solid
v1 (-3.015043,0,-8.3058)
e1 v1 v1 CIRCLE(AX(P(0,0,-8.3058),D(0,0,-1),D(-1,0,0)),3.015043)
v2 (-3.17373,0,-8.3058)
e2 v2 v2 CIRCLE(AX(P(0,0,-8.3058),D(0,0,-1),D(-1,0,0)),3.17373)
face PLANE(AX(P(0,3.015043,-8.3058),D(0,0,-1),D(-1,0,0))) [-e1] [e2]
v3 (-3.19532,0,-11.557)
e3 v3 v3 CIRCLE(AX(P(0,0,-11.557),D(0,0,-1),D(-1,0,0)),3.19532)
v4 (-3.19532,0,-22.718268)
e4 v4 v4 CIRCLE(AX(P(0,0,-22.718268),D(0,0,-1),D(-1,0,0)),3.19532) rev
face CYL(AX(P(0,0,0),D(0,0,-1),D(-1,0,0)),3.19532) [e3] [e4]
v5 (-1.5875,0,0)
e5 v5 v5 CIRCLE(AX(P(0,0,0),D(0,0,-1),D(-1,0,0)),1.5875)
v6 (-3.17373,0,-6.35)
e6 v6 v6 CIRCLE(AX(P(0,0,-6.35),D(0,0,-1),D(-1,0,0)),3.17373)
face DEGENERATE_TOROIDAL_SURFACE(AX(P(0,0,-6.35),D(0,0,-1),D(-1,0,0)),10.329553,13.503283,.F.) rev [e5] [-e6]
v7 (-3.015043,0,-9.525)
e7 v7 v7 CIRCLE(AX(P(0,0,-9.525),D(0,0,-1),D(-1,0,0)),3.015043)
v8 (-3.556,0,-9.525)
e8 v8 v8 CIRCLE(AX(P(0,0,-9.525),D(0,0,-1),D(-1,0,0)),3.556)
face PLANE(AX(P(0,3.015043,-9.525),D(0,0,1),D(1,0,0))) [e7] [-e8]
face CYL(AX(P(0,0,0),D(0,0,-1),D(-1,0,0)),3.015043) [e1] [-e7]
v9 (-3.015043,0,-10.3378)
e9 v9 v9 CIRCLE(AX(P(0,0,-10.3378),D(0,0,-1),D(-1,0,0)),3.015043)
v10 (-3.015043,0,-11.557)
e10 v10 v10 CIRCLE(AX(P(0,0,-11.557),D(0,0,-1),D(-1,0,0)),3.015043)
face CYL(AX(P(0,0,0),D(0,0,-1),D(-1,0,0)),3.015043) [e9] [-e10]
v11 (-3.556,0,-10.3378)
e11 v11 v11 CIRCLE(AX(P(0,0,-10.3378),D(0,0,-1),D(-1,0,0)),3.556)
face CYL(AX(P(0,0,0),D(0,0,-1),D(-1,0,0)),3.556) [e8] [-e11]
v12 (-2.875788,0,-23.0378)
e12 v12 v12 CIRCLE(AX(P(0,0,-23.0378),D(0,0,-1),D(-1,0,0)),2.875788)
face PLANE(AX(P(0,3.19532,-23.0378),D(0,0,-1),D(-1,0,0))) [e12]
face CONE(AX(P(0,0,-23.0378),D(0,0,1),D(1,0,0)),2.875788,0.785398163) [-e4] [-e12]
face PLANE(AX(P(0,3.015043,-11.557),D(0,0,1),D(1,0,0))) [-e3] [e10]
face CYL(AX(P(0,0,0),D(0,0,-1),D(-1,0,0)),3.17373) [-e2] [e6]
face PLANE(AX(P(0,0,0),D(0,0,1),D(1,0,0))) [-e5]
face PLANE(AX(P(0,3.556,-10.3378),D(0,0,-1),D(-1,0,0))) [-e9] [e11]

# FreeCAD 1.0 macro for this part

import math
import FreeCAD as App
import Part
import Sketcher

V = App.Vector
Q = App.Units.Quantity


def edges_at(feature, points):
    """Names of the edges that pass closest to the given points."""
    edges = feature.Shape.Edges
    near = lambda p: min(range(len(edges)), key=lambda i: edges[i].distToShape(Part.Vertex(*p))[0])
    return sorted({f"Edge{near(p) + 1}" for p in points})

doc = App.newDocument("Part")
body = doc.addObject("PartDesign::Body", "Body")

sketch1 = body.newObject("Sketcher::SketchObject", "Sketch")
sketch1.AttachmentSupport = (doc.getObject("YZ_Plane"), [""])
sketch1.MapMode = "FlatFace"
sketch1.addGeometry([
    Part.LineSegment(V(1.5875, 0, 0), V(0, 0, 0)),
    Part.LineSegment(V(0, 0, 0), V(0, -23.0378, 0)),
    Part.LineSegment(V(0, -23.0378, 0), V(3.19532, -23.0378, 0)),
    Part.LineSegment(V(3.19532, -23.0378, 0), V(3.19532, -11.557, 0)),
    Part.LineSegment(V(3.19532, -11.557, 0), V(3.015043, -11.557, 0)),
    Part.LineSegment(V(3.015043, -11.557, 0), V(3.015043, -10.3378, 0)),
    Part.LineSegment(V(3.015043, -10.3378, 0), V(3.556, -10.3378, 0)),
    Part.LineSegment(V(3.556, -10.3378, 0), V(3.556, -9.525, 0)),
    Part.LineSegment(V(3.556, -9.525, 0), V(3.015043, -9.525, 0)),
    Part.LineSegment(V(3.015043, -9.525, 0), V(3.015043, -8.3058, 0)),
    Part.LineSegment(V(3.015043, -8.3058, 0), V(3.17373, -8.3058, 0)),
    Part.LineSegment(V(3.17373, -8.3058, 0), V(3.17373, -6.35, 0)),
    Part.ArcOfCircle(Part.Circle(V(-10.329553, -6.35, 0), V(0, 0, 1), 13.503283), math.radians(0), math.radians(28.050916)),
], False)
sketch1.addConstraint([
    Sketcher.Constraint("Coincident", 0, 2, 1, 1),
    Sketcher.Constraint("Coincident", 1, 2, 2, 1),
    Sketcher.Constraint("Coincident", 2, 2, 3, 1),
    Sketcher.Constraint("Coincident", 3, 2, 4, 1),
    Sketcher.Constraint("Coincident", 4, 2, 5, 1),
    Sketcher.Constraint("Coincident", 5, 2, 6, 1),
    Sketcher.Constraint("Coincident", 6, 2, 7, 1),
    Sketcher.Constraint("Coincident", 7, 2, 8, 1),
    Sketcher.Constraint("Coincident", 8, 2, 9, 1),
    Sketcher.Constraint("Coincident", 9, 2, 10, 1),
    Sketcher.Constraint("Coincident", 10, 2, 11, 1),
    Sketcher.Constraint("Tangent", 11, 2, 12, 1),
    Sketcher.Constraint("Coincident", 12, 2, 0, 1),
    Sketcher.Constraint("Horizontal", 0),
    Sketcher.Constraint("Vertical", 1),
    Sketcher.Constraint("Horizontal", 2),
    Sketcher.Constraint("Vertical", 3),
    Sketcher.Constraint("Horizontal", 4),
    Sketcher.Constraint("Vertical", 5),
    Sketcher.Constraint("Horizontal", 6),
    Sketcher.Constraint("Vertical", 7),
    Sketcher.Constraint("Horizontal", 8),
    Sketcher.Constraint("Vertical", 9),
    Sketcher.Constraint("Horizontal", 10),
    Sketcher.Constraint("Vertical", 11),
    Sketcher.Constraint("Coincident", 0, 2, -1, 1),
    Sketcher.Constraint("Vertical", 5, 2, 8, 2),
    Sketcher.Constraint("Equal", 5, 9),
    Sketcher.Constraint("DistanceY", 2, 2, 5, 2, Q("0.5 in")),
    Sketcher.Constraint("DistanceX", 0, 2, 0, 1, Q("0.0625 in")),
    Sketcher.Constraint("DistanceY", 1, 2, 1, 1, Q("0.907 in")),
    Sketcher.Constraint("DistanceY", 3, 1, 3, 2, Q("0.452 in")),
    Sketcher.Constraint("DistanceY", 7, 1, 7, 2, Q("0.032 in")),
    Sketcher.Constraint("DistanceY", 11, 1, 11, 2, Q("0.077 in")),
    Sketcher.Constraint("DistanceX", -1, 1, 6, 2, Q("0.14 in")),
    Sketcher.Constraint("DistanceX", 2, 1, 2, 2, Q("0.1258 in")),
    Sketcher.Constraint("Radius", 12, 13.503283),
    Sketcher.Constraint("DistanceX", 4, 2, 4, 1, 0.180277),
])
revolution = body.newObject("PartDesign::Revolution", "Revolution")
revolution.Profile = sketch1
revolution.ReferenceAxis = (sketch1, ["V_Axis"])
revolution.Angle = 360
doc.recompute()

chamfer = body.newObject("PartDesign::Chamfer", "Chamfer")
chamfer.Base = (revolution, edges_at(revolution, [(3.195, 0, -23.038)]))
chamfer.Size = 0.319532

doc.recompute()
